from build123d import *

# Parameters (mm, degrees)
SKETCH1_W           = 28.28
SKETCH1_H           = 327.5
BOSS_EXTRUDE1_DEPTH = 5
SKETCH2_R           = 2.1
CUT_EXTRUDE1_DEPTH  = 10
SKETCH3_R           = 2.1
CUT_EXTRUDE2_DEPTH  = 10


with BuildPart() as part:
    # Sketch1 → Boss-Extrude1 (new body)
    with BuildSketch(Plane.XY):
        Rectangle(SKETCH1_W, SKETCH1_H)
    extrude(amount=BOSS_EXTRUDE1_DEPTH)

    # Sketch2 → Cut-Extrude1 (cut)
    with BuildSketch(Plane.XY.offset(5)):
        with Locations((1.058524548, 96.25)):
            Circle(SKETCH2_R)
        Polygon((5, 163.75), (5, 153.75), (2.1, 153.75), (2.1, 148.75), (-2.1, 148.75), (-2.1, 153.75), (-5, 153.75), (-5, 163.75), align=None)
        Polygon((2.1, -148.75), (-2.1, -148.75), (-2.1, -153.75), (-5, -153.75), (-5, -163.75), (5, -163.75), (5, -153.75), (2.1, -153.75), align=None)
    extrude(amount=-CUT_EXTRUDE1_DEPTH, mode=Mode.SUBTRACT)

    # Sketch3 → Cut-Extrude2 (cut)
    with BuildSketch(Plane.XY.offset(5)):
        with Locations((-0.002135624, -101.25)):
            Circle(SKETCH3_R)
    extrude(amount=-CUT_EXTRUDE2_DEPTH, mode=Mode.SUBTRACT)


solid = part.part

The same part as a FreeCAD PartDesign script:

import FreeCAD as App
import Part
import Sketcher

V = App.Vector

doc = App.newDocument("Part")
params = doc.addObject("Spreadsheet::Sheet", "Params")
for row, (alias, value) in enumerate([
    ("sketch1_height", "327.5 mm"),
    ("sketch1_width", "28.28 mm"),
    ("pad1_length", "5 mm"),
    ("sketch2_diameter", "4.2 mm"),
    ("sketch2_width", "10 mm"),
    ("sketch2_height", "5 mm"),
    ("sketch2_width2", "2.9 mm"),
    ("pocket1_length", "10 mm"),
    ("sketch3_diameter", "4.2 mm"),
    ("pocket2_length", "10 mm"),
], start=1):
    params.set(f"A{row}", alias)
    params.set(f"B{row}", "=" + value)
    params.setAlias(f"B{row}", alias)

body = doc.addObject("PartDesign::Body", "Body")

sketch1 = body.newObject("Sketcher::SketchObject", "Sketch")
sketch1.AttachmentSupport = (doc.getObject("XY_Plane"), [""])
sketch1.MapMode = "FlatFace"
sketch1.addGeometry([
    Part.LineSegment(V(-14.14, 163.75, 0), V(-14.14, -163.75, 0)),
    Part.LineSegment(V(-14.14, -163.75, 0), V(14.14, -163.75, 0)),
    Part.LineSegment(V(14.14, -163.75, 0), V(14.14, 163.75, 0)),
    Part.LineSegment(V(14.14, 163.75, 0), V(-14.14, 163.75, 0)),
], False)
sketch1.addConstraint([
    Sketcher.Constraint("Coincident", 0, 2, 1, 1),
    Sketcher.Constraint("Coincident", 1, 2, 2, 1),
    Sketcher.Constraint("Coincident", 2, 2, 3, 1),
    Sketcher.Constraint("Coincident", 3, 2, 0, 1),
    Sketcher.Constraint("Vertical", 0),
    Sketcher.Constraint("Horizontal", 1),
    Sketcher.Constraint("Vertical", 2),
    Sketcher.Constraint("Horizontal", 3),
    Sketcher.Constraint("Symmetric", 0, 2, 2, 2, -1, 1),
    Sketcher.Constraint("DistanceY", 0, 2, 0, 1, 327.5),
    Sketcher.Constraint("DistanceX", 1, 1, 1, 2, 28.28),
])
sketch1.setExpression("Constraints[9]", "Params.sketch1_height")
sketch1.setExpression("Constraints[10]", "Params.sketch1_width")
pad1 = body.newObject("PartDesign::Pad", "Pad")
pad1.Profile = sketch1
pad1.setExpression("Length", "Params.pad1_length")

sketch2 = body.newObject("Sketcher::SketchObject", "Sketch001")
sketch2.AttachmentSupport = (doc.getObject("XY_Plane"), [""])
sketch2.MapMode = "FlatFace"
sketch2.AttachmentOffset = App.Placement(V(0, 0, 5), App.Rotation())
sketch2.addGeometry([
    Part.Circle(V(1.058525, 96.25, 0), V(0, 0, 1), 2.1),
    Part.LineSegment(V(5, 153.75, 0), V(5, 163.75, 0)),
    Part.LineSegment(V(5, 163.75, 0), V(-5, 163.75, 0)),
    Part.LineSegment(V(-5, 163.75, 0), V(-5, 153.75, 0)),
    Part.LineSegment(V(-5, 153.75, 0), V(-2.1, 153.75, 0)),
    Part.LineSegment(V(-2.1, 153.75, 0), V(-2.1, 148.75, 0)),
    Part.LineSegment(V(-2.1, 148.75, 0), V(2.1, 148.75, 0)),
    Part.LineSegment(V(2.1, 148.75, 0), V(2.1, 153.75, 0)),
    Part.LineSegment(V(2.1, 153.75, 0), V(5, 153.75, 0)),
    Part.LineSegment(V(2.1, -148.75, 0), V(-2.1, -148.75, 0)),
    Part.LineSegment(V(-2.1, -148.75, 0), V(-2.1, -153.75, 0)),
    Part.LineSegment(V(-2.1, -153.75, 0), V(-5, -153.75, 0)),
    Part.LineSegment(V(-5, -153.75, 0), V(-5, -163.75, 0)),
    Part.LineSegment(V(-5, -163.75, 0), V(5, -163.75, 0)),
    Part.LineSegment(V(5, -163.75, 0), V(5, -153.75, 0)),
    Part.LineSegment(V(5, -153.75, 0), V(2.1, -153.75, 0)),
    Part.LineSegment(V(2.1, -153.75, 0), V(2.1, -148.75, 0)),
], False)
sketch2.addConstraint([
    Sketcher.Constraint("Coincident", 1, 2, 2, 1),
    Sketcher.Constraint("Coincident", 2, 2, 3, 1),
    Sketcher.Constraint("Coincident", 3, 2, 4, 1),
    Sketcher.Constraint("Coincident", 4, 2, 5, 1),
    Sketcher.Constraint("Coincident", 5, 2, 6, 1),
    Sketcher.Constraint("Coincident", 6, 2, 7, 1),
    Sketcher.Constraint("Coincident", 7, 2, 8, 1),
    Sketcher.Constraint("Coincident", 8, 2, 1, 1),
    Sketcher.Constraint("Coincident", 9, 2, 10, 1),
    Sketcher.Constraint("Coincident", 10, 2, 11, 1),
    Sketcher.Constraint("Coincident", 11, 2, 12, 1),
    Sketcher.Constraint("Coincident", 12, 2, 13, 1),
    Sketcher.Constraint("Coincident", 13, 2, 14, 1),
    Sketcher.Constraint("Coincident", 14, 2, 15, 1),
    Sketcher.Constraint("Coincident", 15, 2, 16, 1),
    Sketcher.Constraint("Coincident", 16, 2, 9, 1),
    Sketcher.Constraint("Vertical", 1),
    Sketcher.Constraint("Horizontal", 2),
    Sketcher.Constraint("Vertical", 3),
    Sketcher.Constraint("Horizontal", 4),
    Sketcher.Constraint("Vertical", 5),
    Sketcher.Constraint("Horizontal", 6),
    Sketcher.Constraint("Vertical", 7),
    Sketcher.Constraint("Horizontal", 8),
    Sketcher.Constraint("Horizontal", 9),
    Sketcher.Constraint("Vertical", 10),
    Sketcher.Constraint("Horizontal", 11),
    Sketcher.Constraint("Vertical", 12),
    Sketcher.Constraint("Horizontal", 13),
    Sketcher.Constraint("Vertical", 14),
    Sketcher.Constraint("Horizontal", 15),
    Sketcher.Constraint("Vertical", 16),
    Sketcher.Constraint("Symmetric", 6, 2, 9, 2, -1, 1),
    Sketcher.Constraint("Symmetric", 8, 2, 11, 2, -1, 1),
    Sketcher.Constraint("Symmetric", 2, 2, 13, 2, -1, 1),
    Sketcher.Constraint("Symmetric", 4, 2, 15, 2, -1, 1),
    Sketcher.Constraint("Symmetric", 4, 2, 7, 2, -2),
    Sketcher.Constraint("Vertical", 3, 2, 11, 2),
    Sketcher.Constraint("Equal", 13, 1),
    Sketcher.Constraint("Diameter", 0, 4.2),
    Sketcher.Constraint("DistanceX", 2, 2, 2, 1, 10.0),
    Sketcher.Constraint("DistanceY", 5, 2, 5, 1, 5.0),
    Sketcher.Constraint("DistanceX", 4, 1, 4, 2, 2.9),
    Sketcher.Constraint("DistanceY", 9, 2, 0, 3, 245.0),
    Sketcher.Constraint("DistanceY", 0, 3, 1, 2, 67.5),
    Sketcher.Constraint("DistanceX", -1, 1, 0, 3, 1.058525),
])
sketch2.setExpression("Constraints[39]", "Params.sketch2_diameter")
sketch2.setExpression("Constraints[40]", "Params.sketch2_width")
sketch2.setExpression("Constraints[41]", "Params.sketch2_height")
sketch2.setExpression("Constraints[42]", "Params.sketch2_width2")
pocket1 = body.newObject("PartDesign::Pocket", "Pocket")
pocket1.Profile = sketch2
pocket1.setExpression("Length", "Params.pocket1_length")

sketch3 = body.newObject("Sketcher::SketchObject", "Sketch002")
sketch3.AttachmentSupport = (doc.getObject("XY_Plane"), [""])
sketch3.MapMode = "FlatFace"
sketch3.AttachmentOffset = App.Placement(V(0, 0, 5), App.Rotation())
sketch3.addGeometry(Part.Circle(V(-0.002136, -101.25, 0), V(0, 0, 1), 2.1), False)
sketch3.addConstraint([
    Sketcher.Constraint("Diameter", 0, 4.2),
    Sketcher.Constraint("DistanceY", 0, 3, -1, 1, 101.25),
    Sketcher.Constraint("DistanceX", 0, 3, -1, 1, 0.002136),
])
sketch3.setExpression("Constraints[0]", "Params.sketch3_diameter")
pocket2 = body.newObject("PartDesign::Pocket", "Pocket001")
pocket2.Profile = sketch3
pocket2.setExpression("Length", "Params.pocket2_length")

doc.recompute()
